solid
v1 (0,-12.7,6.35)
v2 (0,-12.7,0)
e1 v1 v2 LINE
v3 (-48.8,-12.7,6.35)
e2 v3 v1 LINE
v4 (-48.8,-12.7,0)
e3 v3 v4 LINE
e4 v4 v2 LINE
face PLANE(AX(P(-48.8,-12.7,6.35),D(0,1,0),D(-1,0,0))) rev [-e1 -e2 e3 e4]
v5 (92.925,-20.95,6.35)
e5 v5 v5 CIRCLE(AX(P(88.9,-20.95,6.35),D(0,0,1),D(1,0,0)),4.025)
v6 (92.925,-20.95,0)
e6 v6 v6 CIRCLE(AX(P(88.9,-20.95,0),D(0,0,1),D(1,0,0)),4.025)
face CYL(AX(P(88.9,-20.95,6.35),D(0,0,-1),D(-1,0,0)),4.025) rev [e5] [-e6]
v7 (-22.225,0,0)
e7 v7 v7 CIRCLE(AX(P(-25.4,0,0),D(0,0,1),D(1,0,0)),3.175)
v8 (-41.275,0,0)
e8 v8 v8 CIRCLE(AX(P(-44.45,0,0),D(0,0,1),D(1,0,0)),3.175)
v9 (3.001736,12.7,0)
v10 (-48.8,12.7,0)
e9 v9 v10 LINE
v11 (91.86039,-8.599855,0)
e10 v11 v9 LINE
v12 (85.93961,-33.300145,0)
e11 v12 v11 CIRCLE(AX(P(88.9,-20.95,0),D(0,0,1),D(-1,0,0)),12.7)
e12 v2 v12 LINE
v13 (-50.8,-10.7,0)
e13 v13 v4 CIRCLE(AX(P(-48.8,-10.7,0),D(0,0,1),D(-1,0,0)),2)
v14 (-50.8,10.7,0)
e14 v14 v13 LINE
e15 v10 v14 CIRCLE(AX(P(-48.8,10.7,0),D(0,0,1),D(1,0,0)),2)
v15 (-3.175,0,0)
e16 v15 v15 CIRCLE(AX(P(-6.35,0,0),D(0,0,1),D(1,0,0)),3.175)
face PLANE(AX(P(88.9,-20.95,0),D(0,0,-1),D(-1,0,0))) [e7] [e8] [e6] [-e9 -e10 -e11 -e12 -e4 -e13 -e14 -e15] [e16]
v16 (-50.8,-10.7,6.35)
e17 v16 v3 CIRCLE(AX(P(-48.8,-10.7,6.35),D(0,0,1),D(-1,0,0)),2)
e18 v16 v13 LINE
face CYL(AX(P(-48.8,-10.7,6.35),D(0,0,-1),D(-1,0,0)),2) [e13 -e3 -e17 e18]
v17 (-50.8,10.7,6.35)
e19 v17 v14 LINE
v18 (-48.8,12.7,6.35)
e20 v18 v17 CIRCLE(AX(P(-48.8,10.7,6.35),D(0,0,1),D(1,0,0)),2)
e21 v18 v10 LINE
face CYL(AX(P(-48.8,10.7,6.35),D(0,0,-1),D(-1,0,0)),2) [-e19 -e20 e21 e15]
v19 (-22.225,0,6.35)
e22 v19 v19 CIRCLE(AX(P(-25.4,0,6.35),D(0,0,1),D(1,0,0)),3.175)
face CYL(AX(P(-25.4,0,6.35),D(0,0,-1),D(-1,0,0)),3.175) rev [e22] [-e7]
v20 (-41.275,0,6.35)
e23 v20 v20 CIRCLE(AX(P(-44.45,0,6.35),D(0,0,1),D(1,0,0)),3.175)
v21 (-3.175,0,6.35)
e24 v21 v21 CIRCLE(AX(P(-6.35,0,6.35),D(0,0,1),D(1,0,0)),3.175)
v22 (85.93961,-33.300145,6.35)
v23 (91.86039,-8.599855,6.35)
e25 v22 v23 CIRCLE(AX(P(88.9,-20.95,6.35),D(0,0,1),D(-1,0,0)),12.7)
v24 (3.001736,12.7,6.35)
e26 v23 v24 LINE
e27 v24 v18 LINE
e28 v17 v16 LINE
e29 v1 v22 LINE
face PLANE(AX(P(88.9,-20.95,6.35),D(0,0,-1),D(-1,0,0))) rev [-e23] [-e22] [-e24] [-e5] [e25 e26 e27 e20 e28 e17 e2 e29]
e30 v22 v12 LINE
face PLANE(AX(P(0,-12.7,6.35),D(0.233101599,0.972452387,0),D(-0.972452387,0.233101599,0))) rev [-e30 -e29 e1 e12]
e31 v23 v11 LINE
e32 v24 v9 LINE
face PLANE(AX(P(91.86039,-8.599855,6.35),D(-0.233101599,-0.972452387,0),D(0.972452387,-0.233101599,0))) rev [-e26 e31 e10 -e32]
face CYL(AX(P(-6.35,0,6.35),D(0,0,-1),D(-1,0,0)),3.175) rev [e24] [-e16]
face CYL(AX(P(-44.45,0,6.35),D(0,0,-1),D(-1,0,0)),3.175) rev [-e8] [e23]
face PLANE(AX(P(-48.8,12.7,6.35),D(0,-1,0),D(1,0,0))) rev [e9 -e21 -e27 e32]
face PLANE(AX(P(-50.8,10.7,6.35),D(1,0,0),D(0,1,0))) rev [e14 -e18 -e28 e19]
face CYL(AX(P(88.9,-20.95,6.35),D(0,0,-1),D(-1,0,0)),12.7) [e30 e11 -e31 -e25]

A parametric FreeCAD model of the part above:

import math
import FreeCAD as App
import Part
import Sketcher

V = App.Vector

doc = App.newDocument("Part")
params = doc.addObject("Spreadsheet::Sheet", "Params")
for row, (alias, value) in enumerate([
    ("sketch1_radius", "2 mm"),
    ("sketch1_radius2", "12.7 mm"),
    ("sketch1_diameter", "8.05 mm"),
    ("sketch1_diameter2", "6.35 mm"),
    ("sketch1_width", "48.8 mm"),
    ("pad1_length", "6.35 mm"),
], start=1):
    params.set(f"A{row}", alias)
    params.set(f"B{row}", "=" + value)
    params.setAlias(f"B{row}", alias)

body = doc.addObject("PartDesign::Body", "Body")

# Sketch on XY plane
sketch1 = body.newObject("Sketcher::SketchObject", "Sketch")
sketch1.AttachmentSupport = (doc.getObject("XY_Plane"), [""])
sketch1.MapMode = "FlatFace"
sketch1.addGeometry(Part.LineSegment(V(91.9, -8.6, 0), V(3, 12.7, 0)), False)
sketch1.addGeometry(Part.LineSegment(V(3, 12.7, 0), V(-48.8, 12.7, 0)), False)
sketch1.addGeometry(Part.ArcOfCircle(Part.Circle(V(-48.8, 10.7, 0), V(0, 0, 1), 2), math.radians(90), math.radians(180)), False)
sketch1.addGeometry(Part.LineSegment(V(-50.8, 10.7, 0), V(-50.8, -10.7, 0)), False)
sketch1.addGeometry(Part.ArcOfCircle(Part.Circle(V(-48.8, -10.7, 0), V(0, 0, 1), 2), math.radians(-180), math.radians(-90)), False)
sketch1.addGeometry(Part.LineSegment(V(-48.8, -12.7, 0), V(0, -12.7, 0)), False)
sketch1.addGeometry(Part.LineSegment(V(0, -12.7, 0), V(85.9, -33.3, 0)), False)
sketch1.addGeometry(Part.ArcOfCircle(Part.Circle(V(88.9, -20.9, 0), V(0, 0, 1), 12.7), math.radians(-103), math.radians(77)), False)
sketch1.addGeometry(Part.Circle(V(88.9, -20.9, 0), V(0, 0, 1), 4), False)
sketch1.addGeometry(Part.Circle(V(-44.5, 0, 0), V(0, 0, 1), 3.2), False)
sketch1.addGeometry(Part.Circle(V(-25.4, 0, 0), V(0, 0, 1), 3.2), False)
sketch1.addGeometry(Part.Circle(V(-6.3, 0, 0), V(0, 0, 1), 3.2), False)
sketch1.addConstraint(Sketcher.Constraint("Coincident", 0, 2, 1, 1))
sketch1.addConstraint(Sketcher.Constraint("Tangent", 1, 2, 2, 1))
sketch1.addConstraint(Sketcher.Constraint("Tangent", 2, 2, 3, 1))
sketch1.addConstraint(Sketcher.Constraint("Tangent", 3, 2, 4, 1))
sketch1.addConstraint(Sketcher.Constraint("Tangent", 4, 2, 5, 1))
sketch1.addConstraint(Sketcher.Constraint("Coincident", 5, 2, 6, 1))
sketch1.addConstraint(Sketcher.Constraint("Tangent", 6, 2, 7, 1))
sketch1.addConstraint(Sketcher.Constraint("Tangent", 7, 2, 0, 1))
sketch1.addConstraint(Sketcher.Constraint("Horizontal", 1))
sketch1.addConstraint(Sketcher.Constraint("Vertical", 3))
sketch1.addConstraint(Sketcher.Constraint("Horizontal", 5))
sketch1.addConstraint(Sketcher.Constraint("Coincident", 8, 3, 7, 3))
sketch1.addConstraint(Sketcher.Constraint("Equal", 2, 4))
sketch1.addConstraint(Sketcher.Constraint("Equal", 9, 10))
sketch1.addConstraint(Sketcher.Constraint("Equal", 10, 11))
sketch1.addConstraint(Sketcher.Constraint("PointOnObject", 9, 3, -1))
sketch1.addConstraint(Sketcher.Constraint("PointOnObject", 10, 3, -1))
sketch1.addConstraint(Sketcher.Constraint("PointOnObject", 11, 3, -1))
sketch1.addConstraint(Sketcher.Constraint("PointOnObject", 5, 2, -2))
sketch1.addConstraint(Sketcher.Constraint("Parallel", 0, 6))
sketch1.addConstraint(Sketcher.Constraint("Radius", 2, 2.0))
sketch1.addConstraint(Sketcher.Constraint("Radius", 7, 12.7))
sketch1.addConstraint(Sketcher.Constraint("Diameter", 8, 8.05))
sketch1.addConstraint(Sketcher.Constraint("Diameter", 9, 6.35))
sketch1.addConstraint(Sketcher.Constraint("DistanceX", 5, 1, 5, 2, 48.8))
sketch1.addConstraint(Sketcher.Constraint("DistanceY", 3, 2, 3, 1, 21.4))
sketch1.addConstraint(Sketcher.Constraint("DistanceY", -1, 1, 2, 3, 10.7))
sketch1.addConstraint(Sketcher.Constraint("DistanceX", -1, 1, 7, 3, 88.9))
sketch1.addConstraint(Sketcher.Constraint("DistanceX", 10, 3, -1, 1, 25.4))
sketch1.addConstraint(Sketcher.Constraint("DistanceX", 9, 3, 11, 3, 38.1))
sketch1.addConstraint(Sketcher.Constraint("DistanceY", 7, 3, -1, 1, 20.95))
sketch1.addConstraint(Sketcher.Constraint("DistanceX", 9, 3, -1, 1, 44.45))
sketch1.setExpression("Constraints[20]", "Params.sketch1_radius")
sketch1.setExpression("Constraints[21]", "Params.sketch1_radius2")
sketch1.setExpression("Constraints[22]", "Params.sketch1_diameter")
sketch1.setExpression("Constraints[23]", "Params.sketch1_diameter2")
sketch1.setExpression("Constraints[24]", "Params.sketch1_width")
pad1 = body.newObject("PartDesign::Pad", "Pad")
pad1.Profile = sketch1
pad1.setExpression("Length", "Params.pad1_length")

doc.recompute()
